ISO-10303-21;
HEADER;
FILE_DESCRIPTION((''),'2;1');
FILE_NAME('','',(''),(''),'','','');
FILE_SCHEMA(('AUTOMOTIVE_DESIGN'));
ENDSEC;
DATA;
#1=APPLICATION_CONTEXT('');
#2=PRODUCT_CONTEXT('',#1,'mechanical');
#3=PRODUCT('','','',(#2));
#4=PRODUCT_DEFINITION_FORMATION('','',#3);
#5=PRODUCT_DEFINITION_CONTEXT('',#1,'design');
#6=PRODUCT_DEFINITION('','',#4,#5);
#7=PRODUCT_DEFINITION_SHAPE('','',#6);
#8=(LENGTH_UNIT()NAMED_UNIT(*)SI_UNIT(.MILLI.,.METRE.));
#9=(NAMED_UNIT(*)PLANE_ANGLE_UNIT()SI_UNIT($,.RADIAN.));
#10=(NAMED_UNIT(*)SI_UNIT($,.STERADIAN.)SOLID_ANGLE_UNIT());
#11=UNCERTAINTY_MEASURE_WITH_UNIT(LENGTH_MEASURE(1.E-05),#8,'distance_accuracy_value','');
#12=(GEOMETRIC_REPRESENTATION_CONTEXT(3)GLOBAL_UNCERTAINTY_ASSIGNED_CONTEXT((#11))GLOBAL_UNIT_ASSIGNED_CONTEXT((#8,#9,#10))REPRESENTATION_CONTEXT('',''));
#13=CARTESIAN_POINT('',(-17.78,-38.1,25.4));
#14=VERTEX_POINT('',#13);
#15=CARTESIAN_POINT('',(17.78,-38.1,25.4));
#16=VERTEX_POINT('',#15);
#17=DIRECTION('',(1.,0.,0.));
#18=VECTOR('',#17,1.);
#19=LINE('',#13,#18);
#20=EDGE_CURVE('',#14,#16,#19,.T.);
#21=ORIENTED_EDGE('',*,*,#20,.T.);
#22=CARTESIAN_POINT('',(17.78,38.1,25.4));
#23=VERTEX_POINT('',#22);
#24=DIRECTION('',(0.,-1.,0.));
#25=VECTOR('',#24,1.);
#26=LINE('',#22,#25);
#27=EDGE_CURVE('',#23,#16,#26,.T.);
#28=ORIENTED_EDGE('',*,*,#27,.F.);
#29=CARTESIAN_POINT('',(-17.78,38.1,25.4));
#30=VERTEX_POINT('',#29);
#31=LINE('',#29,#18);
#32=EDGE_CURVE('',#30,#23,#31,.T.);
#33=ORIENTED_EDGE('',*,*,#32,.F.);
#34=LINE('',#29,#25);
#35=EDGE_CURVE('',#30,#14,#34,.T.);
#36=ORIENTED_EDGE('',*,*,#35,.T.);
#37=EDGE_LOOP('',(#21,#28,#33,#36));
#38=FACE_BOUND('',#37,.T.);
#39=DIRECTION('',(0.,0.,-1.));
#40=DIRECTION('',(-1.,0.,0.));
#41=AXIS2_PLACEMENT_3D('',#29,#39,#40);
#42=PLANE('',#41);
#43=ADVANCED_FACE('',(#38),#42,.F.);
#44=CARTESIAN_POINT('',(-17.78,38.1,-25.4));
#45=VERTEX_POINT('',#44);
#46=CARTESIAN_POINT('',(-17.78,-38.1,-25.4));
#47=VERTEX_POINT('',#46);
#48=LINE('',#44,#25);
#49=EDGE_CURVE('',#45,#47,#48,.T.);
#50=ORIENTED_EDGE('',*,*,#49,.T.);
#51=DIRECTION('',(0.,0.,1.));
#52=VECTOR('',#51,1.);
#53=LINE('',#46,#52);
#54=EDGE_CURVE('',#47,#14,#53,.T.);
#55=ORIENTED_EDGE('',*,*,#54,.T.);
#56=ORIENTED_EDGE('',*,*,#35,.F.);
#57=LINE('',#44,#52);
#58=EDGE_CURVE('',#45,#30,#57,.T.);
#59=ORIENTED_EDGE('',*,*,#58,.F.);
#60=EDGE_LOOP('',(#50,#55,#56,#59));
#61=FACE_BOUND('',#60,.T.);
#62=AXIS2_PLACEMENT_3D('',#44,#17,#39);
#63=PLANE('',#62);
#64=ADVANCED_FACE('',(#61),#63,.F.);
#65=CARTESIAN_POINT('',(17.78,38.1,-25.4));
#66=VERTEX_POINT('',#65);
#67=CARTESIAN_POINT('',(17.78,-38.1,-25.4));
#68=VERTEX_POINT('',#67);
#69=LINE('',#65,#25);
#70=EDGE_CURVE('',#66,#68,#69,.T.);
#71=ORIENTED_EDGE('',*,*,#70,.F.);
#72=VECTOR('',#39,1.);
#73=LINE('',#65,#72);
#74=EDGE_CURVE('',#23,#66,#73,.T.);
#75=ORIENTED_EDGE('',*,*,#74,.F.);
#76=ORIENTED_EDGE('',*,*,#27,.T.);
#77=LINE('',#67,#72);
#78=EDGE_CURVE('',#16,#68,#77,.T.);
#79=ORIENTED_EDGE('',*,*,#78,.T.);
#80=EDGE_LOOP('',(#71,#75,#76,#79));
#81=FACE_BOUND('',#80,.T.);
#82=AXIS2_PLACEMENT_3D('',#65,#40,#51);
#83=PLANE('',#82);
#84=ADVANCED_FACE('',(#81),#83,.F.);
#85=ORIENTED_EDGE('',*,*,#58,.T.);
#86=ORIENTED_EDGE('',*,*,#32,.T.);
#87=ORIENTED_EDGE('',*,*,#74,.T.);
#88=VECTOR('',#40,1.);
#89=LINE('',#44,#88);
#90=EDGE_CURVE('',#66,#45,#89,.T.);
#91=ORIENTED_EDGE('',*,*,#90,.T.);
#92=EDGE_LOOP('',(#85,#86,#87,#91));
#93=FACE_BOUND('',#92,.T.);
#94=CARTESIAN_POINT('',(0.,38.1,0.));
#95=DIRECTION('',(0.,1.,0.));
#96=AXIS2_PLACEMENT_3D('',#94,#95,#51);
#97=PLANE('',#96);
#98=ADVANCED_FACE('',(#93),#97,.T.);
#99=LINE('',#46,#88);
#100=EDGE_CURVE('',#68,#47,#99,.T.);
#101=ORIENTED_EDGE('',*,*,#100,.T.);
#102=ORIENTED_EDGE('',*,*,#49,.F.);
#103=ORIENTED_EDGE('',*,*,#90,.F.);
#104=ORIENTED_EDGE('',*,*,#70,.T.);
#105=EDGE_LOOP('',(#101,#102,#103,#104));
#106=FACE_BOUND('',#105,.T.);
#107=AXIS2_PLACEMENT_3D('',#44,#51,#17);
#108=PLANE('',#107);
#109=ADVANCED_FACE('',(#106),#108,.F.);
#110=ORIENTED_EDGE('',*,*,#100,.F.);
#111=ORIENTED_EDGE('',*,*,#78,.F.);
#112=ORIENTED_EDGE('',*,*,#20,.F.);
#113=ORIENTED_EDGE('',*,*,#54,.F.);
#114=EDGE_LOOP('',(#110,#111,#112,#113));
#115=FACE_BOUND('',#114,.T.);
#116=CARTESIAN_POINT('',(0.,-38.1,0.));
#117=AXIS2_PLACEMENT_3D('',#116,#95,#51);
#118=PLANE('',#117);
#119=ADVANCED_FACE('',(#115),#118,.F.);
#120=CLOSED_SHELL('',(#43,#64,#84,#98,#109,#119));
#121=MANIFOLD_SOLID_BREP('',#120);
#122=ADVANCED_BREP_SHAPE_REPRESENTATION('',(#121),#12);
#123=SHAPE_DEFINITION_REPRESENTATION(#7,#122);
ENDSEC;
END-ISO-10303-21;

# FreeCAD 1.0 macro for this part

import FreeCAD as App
import Part
import Sketcher

V = App.Vector
Q = App.Units.Quantity


def add_polygon(sketch, points):
    """Adds a closed chain of lines whose ends are joined by coincident constraints."""
    first, n = sketch.GeometryCount, len(points)
    for a, b in zip(points, points[1:] + points[:1]):
        sketch.addGeometry(Part.LineSegment(App.Vector(*a, 0), App.Vector(*b, 0)), False)
    for i in range(n):
        sketch.addConstraint(Sketcher.Constraint("Coincident", first + i, 2, first + (i + 1) % n, 1))

doc = App.newDocument("Part")
body = doc.addObject("PartDesign::Body", "Body")

# Sketch on XZ plane
sketch1 = body.newObject("Sketcher::SketchObject", "Sketch")
sketch1.AttachmentSupport = (doc.getObject("XZ_Plane"), [""])
sketch1.MapMode = "FlatFace"
add_polygon(sketch1, [(-18, -25), (-18, 25), (18, 25), (18, -25)])  # lines 0-3
sketch1.addConstraint([
    Sketcher.Constraint("Vertical", 0),
    Sketcher.Constraint("Horizontal", 1),
    Sketcher.Constraint("Vertical", 2),
    Sketcher.Constraint("Horizontal", 3),
    Sketcher.Constraint("Symmetric", 0, 2, 2, 2, -1, 1),
    Sketcher.Constraint("DistanceY", 0, 1, 0, 2, Q("2 in")),
    Sketcher.Constraint("DistanceX", 1, 1, 1, 2, Q("1.4 in")),
])
pad1 = body.newObject("PartDesign::Pad", "Pad")
pad1.Profile = sketch1
pad1.Length = Q("3 in")
pad1.Midplane = True

doc.recompute()
